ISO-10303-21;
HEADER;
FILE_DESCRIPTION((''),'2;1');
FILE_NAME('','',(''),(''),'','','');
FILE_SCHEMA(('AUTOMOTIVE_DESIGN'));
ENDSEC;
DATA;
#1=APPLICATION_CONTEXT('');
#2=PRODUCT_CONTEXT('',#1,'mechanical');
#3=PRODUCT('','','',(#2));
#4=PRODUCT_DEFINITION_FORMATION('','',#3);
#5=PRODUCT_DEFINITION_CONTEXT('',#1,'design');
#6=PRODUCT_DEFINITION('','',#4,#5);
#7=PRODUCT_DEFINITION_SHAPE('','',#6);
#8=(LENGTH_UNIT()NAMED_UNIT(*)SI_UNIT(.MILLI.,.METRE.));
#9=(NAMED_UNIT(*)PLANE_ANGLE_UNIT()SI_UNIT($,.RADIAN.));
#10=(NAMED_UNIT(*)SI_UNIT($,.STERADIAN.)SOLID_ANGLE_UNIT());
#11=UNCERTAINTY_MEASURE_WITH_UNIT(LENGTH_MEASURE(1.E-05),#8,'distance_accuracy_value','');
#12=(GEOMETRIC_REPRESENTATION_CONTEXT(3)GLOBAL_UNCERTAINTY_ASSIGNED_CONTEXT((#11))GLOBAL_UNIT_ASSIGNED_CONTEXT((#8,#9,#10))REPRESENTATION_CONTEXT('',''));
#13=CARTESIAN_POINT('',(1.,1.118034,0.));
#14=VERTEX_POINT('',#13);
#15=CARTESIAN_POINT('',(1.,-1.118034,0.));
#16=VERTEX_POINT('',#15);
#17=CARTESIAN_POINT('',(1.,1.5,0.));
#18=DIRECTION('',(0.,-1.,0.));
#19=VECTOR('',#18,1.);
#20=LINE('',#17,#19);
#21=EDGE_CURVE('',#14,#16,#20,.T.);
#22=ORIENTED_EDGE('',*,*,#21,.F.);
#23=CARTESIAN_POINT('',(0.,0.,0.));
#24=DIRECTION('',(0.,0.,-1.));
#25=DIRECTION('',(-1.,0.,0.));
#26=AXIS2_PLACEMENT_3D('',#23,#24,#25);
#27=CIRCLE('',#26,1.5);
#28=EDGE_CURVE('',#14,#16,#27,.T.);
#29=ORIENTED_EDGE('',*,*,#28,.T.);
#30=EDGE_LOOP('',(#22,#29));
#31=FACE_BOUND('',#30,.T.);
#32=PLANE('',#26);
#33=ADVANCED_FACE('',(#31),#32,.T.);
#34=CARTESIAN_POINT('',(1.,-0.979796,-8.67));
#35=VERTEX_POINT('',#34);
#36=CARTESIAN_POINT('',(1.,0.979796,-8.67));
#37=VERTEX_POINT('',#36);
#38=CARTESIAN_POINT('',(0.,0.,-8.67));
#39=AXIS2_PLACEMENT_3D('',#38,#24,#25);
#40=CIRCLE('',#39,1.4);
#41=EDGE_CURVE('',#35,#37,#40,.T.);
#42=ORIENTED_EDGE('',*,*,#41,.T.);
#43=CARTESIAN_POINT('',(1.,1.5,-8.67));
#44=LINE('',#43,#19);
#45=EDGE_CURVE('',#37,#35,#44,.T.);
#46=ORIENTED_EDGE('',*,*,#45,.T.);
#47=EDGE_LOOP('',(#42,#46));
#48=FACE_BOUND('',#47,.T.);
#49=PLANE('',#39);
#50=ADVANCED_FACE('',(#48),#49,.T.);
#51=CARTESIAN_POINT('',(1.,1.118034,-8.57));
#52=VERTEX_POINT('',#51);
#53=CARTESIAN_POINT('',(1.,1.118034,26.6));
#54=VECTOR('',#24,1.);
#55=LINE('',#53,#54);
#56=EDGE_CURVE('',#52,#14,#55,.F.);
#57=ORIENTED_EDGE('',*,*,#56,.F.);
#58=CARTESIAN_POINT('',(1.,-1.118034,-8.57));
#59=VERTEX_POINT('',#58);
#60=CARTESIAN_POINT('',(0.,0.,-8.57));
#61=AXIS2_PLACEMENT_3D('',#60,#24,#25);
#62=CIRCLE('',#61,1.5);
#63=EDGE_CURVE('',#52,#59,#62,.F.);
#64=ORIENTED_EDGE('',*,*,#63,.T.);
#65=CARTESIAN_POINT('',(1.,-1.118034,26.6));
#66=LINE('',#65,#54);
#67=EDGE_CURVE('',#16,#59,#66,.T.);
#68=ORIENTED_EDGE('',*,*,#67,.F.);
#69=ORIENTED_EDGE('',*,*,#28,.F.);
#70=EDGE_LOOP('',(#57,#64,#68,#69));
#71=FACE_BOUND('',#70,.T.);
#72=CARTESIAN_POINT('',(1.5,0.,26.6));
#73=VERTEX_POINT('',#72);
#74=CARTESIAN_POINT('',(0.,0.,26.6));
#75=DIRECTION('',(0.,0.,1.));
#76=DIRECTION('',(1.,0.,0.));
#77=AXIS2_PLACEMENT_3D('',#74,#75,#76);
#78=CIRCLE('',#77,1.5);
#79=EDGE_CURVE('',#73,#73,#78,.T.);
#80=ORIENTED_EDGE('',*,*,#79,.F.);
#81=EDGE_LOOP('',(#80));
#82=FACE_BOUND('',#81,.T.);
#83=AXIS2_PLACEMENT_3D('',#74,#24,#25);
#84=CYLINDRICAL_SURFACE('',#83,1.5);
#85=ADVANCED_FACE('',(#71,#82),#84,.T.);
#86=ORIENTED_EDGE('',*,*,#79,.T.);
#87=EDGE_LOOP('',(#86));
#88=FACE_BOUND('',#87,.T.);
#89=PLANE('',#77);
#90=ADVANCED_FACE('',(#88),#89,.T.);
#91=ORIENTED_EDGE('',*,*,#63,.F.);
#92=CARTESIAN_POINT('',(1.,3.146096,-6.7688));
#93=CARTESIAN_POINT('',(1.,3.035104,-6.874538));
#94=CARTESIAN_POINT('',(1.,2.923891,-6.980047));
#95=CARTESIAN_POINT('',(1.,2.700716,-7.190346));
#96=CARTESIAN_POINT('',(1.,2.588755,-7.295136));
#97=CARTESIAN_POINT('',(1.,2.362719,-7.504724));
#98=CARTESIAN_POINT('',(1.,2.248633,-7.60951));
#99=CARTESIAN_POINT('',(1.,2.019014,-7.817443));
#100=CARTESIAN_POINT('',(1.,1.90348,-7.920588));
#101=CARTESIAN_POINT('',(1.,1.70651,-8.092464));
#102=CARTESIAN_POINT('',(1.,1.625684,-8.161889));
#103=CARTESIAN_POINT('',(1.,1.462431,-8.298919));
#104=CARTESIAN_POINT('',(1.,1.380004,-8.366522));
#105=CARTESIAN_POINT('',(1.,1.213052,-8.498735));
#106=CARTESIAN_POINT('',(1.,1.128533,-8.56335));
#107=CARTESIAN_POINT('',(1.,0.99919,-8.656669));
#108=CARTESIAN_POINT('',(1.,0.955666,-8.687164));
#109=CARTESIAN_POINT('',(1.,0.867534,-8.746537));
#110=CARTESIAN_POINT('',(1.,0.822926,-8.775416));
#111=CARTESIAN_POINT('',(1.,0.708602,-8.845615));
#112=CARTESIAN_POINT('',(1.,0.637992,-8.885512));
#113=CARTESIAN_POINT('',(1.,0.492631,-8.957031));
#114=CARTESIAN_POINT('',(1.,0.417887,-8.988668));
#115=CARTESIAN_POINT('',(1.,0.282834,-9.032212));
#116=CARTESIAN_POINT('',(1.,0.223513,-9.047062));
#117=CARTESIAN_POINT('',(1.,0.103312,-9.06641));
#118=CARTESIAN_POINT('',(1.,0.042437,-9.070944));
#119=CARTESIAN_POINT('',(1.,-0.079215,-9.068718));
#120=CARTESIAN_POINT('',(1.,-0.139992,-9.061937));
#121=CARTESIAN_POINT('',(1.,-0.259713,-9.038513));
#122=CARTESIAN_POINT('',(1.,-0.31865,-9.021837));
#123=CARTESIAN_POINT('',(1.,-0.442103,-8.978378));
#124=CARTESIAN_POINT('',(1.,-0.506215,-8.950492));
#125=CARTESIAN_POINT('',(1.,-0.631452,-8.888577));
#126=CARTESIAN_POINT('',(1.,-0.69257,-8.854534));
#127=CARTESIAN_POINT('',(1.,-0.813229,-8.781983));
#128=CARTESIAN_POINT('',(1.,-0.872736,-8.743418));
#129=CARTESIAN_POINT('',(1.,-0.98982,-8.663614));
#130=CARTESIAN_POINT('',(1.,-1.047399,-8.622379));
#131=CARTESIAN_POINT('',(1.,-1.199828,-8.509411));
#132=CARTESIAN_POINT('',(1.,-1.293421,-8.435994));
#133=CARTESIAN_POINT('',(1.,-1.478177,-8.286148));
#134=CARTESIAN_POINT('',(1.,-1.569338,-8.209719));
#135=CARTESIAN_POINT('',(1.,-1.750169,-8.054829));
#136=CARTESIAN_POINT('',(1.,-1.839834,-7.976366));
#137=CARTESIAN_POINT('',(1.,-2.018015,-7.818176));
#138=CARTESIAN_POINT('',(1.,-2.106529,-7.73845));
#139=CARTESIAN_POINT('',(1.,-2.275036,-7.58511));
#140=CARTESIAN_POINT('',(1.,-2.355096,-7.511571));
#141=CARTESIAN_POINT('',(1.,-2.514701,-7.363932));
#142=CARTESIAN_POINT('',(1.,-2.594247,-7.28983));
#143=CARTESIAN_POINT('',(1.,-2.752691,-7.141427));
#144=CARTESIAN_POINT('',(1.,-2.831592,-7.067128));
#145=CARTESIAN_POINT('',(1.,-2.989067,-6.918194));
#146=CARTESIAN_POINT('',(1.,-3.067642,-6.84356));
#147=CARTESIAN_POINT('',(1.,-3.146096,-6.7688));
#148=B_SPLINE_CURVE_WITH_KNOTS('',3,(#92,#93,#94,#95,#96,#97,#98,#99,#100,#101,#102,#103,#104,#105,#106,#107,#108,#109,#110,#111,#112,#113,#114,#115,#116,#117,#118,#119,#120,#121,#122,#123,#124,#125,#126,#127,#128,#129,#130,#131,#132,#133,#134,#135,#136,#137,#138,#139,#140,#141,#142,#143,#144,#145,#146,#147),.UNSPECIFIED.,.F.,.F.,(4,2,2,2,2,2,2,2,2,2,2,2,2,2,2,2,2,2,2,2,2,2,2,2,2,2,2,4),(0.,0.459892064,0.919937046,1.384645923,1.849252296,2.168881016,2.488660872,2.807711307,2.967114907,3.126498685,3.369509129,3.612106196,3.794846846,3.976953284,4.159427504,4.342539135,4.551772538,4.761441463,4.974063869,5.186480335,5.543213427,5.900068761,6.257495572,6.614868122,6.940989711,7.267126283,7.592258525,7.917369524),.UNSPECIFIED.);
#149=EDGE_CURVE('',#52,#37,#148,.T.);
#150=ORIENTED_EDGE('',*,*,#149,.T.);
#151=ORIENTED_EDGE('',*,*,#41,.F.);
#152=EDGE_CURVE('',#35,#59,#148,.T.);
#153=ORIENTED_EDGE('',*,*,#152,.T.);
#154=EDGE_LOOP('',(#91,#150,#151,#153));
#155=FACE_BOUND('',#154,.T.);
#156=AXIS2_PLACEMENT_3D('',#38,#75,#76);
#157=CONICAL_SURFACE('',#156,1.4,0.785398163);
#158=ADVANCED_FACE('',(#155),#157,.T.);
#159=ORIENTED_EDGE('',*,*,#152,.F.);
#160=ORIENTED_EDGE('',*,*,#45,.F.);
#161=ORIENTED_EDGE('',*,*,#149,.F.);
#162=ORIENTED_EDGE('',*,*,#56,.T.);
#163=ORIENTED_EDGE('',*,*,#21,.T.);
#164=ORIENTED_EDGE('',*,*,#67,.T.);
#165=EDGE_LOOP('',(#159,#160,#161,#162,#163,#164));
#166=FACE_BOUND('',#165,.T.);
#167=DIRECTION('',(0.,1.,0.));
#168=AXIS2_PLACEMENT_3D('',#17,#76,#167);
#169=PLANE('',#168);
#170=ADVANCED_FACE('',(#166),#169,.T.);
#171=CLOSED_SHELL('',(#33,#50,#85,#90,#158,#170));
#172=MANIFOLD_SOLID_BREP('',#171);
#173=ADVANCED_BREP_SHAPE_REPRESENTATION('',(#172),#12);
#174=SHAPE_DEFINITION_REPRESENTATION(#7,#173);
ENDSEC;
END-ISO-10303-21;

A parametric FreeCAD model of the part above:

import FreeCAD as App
import Part
import Sketcher
from FreeCAD import Vector


def edges_at(feature, points):
    """Names of the edges that pass closest to the given points."""
    edges = feature.Shape.Edges
    near = lambda p: min(range(len(edges)), key=lambda i: edges[i].distToShape(Part.Vertex(*p))[0])
    return sorted({f"Edge{near(p) + 1}" for p in points})


def add_polygon(sketch, points):
    """Adds a closed chain of lines whose ends are joined by coincident constraints."""
    first, n = sketch.GeometryCount, len(points)
    for a, b in zip(points, points[1:] + points[:1]):
        sketch.addGeometry(Part.LineSegment(App.Vector(*a, 0), App.Vector(*b, 0)), False)
    for i in range(n):
        sketch.addConstraint(Sketcher.Constraint("Coincident", first + i, 2, first + (i + 1) % n, 1))

doc = App.newDocument("Part")
body = doc.addObject("PartDesign::Body", "Body")

# Sketch on XY plane
sketch1 = doc.addObject("Sketcher::SketchObject", "Sketch")
body.addObject(sketch1)
sketch1.AttachmentSupport = (doc.XY_Plane, [""])
sketch1.MapMode = "FlatFace"
sketch1.addGeometry(Part.Circle(Vector(0, 0, 0), Vector(0, 0, 1), 1.5), False)
sketch1.addConstraint([
    Sketcher.Constraint("Coincident", 0, 3, -1, 1),
    Sketcher.Constraint("Diameter", 0, 3.0),
])
pad1 = doc.addObject("PartDesign::Pad", "Pad")
body.addObject(pad1)
pad1.Profile = sketch1
pad1.Length = 26.6

# Sketch on XY plane
sketch2 = doc.addObject("Sketcher::SketchObject", "Sketch001")
body.addObject(sketch2)
sketch2.AttachmentSupport = (doc.XY_Plane, [""])
sketch2.MapMode = "FlatFace"
sketch2.addGeometry(Part.Circle(Vector(0, 0, 0), Vector(0, 0, 1), 1.5), False)
sketch2.addConstraint([
    Sketcher.Constraint("Coincident", 0, 3, -1, 1),
    Sketcher.Constraint("Diameter", 0, 3.0),
])
pad2 = doc.addObject("PartDesign::Pad", "Pad001")
body.addObject(pad2)
pad2.Profile = sketch2
pad2.Length = 8.67
pad2.Reversed = True
doc.recompute()

chamfer = doc.addObject("PartDesign::Chamfer", "Chamfer")
body.addObject(chamfer)
chamfer.Base = (pad2, edges_at(pad2, [(1.5, 0, -8.67)]))
chamfer.Size = 0.1

# Sketch on XY plane
sketch3 = doc.addObject("Sketcher::SketchObject", "Sketch002")
body.addObject(sketch3)
sketch3.AttachmentSupport = (doc.XY_Plane, [""])
sketch3.MapMode = "FlatFace"
sketch3.AttachmentOffset = App.Placement(Vector(0, 0, -8.67), App.Rotation())
add_polygon(sketch3, [(6.1, 6.1), (6.1, -6.1), (-6.1, -6.1), (-6.1, 6.1)])  # lines 0-3
add_polygon(sketch3, [(-1.5, -1.5), (1, -1.5), (1, 1.5), (-1.5, 1.5)])  # lines 4-7
sketch3.addConstraint([
    Sketcher.Constraint("Vertical", 0),
    Sketcher.Constraint("Horizontal", 1),
    Sketcher.Constraint("Vertical", 2),
    Sketcher.Constraint("Horizontal", 3),
    Sketcher.Constraint("Horizontal", 4),
    Sketcher.Constraint("Vertical", 5),
    Sketcher.Constraint("Horizontal", 6),
    Sketcher.Constraint("Vertical", 7),
    Sketcher.Constraint("Symmetric", 0, 2, 2, 2, -1, 1),
    Sketcher.Constraint("Equal", 3, 0),
    Sketcher.Constraint("DistanceY", 5, 1, 5, 2, 3.0),
    Sketcher.Constraint("DistanceX", 4, 1, 4, 2, 2.5),
    Sketcher.Constraint("DistanceX", -1, 1, 4, 2, 1.0),
    Sketcher.Constraint("DistanceY", 4, 2, -1, 1, 1.5),
    Sketcher.Constraint("DistanceX", 1, 2, 1, 1, 12.104),
])
pocket1 = doc.addObject("PartDesign::Pocket", "Pocket")
body.addObject(pocket1)
pocket1.Profile = sketch3
pocket1.Length = 8.67
pocket1.Reversed = True

doc.recompute()
